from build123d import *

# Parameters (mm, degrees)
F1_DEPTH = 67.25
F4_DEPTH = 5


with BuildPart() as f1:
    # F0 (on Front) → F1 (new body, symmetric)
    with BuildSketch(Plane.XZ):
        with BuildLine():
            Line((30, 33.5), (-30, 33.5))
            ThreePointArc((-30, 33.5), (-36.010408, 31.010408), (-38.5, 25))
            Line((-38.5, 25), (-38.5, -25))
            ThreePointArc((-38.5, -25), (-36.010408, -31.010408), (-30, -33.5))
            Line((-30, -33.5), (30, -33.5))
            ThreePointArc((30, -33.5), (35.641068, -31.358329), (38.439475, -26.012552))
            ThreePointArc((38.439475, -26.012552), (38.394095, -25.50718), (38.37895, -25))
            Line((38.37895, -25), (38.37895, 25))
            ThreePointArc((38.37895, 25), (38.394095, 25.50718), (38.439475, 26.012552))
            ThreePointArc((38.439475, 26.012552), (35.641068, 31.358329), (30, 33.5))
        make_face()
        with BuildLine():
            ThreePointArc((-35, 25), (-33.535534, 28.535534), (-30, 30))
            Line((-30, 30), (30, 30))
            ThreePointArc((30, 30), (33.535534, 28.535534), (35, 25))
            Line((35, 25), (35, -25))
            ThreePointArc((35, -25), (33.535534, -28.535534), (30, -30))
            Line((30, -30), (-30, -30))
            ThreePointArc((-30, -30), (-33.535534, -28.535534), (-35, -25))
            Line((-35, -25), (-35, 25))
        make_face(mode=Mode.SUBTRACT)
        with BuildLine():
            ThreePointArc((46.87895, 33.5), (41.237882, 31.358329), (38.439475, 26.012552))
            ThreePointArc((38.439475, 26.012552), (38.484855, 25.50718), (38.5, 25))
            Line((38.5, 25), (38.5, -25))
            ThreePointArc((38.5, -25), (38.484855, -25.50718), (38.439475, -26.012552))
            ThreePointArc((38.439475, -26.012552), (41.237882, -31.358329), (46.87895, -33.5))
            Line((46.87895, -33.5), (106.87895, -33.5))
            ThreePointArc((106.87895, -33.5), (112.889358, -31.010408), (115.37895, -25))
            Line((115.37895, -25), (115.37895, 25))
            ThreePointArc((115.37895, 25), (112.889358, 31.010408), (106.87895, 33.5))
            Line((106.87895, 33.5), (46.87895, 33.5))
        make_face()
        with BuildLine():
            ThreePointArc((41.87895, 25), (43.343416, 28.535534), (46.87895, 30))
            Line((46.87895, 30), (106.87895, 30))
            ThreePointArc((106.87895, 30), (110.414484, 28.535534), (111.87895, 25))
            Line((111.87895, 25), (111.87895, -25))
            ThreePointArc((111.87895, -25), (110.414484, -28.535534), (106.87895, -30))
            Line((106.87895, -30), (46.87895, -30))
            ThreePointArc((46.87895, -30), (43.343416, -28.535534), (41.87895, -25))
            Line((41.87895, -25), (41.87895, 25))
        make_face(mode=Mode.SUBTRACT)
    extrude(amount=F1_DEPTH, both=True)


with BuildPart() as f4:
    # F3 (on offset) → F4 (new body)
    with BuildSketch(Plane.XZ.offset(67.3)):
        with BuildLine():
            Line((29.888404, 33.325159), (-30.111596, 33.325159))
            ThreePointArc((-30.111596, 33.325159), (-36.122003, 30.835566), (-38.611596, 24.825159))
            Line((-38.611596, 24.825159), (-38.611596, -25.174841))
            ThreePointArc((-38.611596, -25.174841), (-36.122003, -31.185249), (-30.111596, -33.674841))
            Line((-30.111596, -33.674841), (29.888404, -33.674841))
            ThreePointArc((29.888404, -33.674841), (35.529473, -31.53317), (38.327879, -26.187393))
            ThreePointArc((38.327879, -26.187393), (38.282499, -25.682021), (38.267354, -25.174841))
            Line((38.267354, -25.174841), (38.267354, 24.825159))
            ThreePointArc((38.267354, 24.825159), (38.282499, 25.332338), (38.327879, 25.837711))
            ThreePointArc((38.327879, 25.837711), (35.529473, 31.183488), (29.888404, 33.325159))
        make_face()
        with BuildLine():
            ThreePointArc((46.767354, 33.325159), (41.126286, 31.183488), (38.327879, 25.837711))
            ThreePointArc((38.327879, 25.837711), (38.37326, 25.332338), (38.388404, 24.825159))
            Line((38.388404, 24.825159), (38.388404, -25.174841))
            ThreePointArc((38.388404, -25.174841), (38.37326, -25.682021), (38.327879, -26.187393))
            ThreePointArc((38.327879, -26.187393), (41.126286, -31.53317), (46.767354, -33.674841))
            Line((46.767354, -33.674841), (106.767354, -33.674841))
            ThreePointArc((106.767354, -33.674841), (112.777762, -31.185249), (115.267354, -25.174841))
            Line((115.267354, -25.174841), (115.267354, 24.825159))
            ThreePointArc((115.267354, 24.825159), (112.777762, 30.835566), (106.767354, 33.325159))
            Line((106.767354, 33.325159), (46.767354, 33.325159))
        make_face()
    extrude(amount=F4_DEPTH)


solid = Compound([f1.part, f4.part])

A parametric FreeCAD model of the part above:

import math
import FreeCAD as App
import Part
import Sketcher

doc = App.newDocument("Part")
body = doc.addObject("PartDesign::Body", "Body")
body.AllowCompound = True

sketch1 = body.newObject("Sketcher::SketchObject", "Sketch")
sketch1.AttachmentSupport = (doc.getObject("XZ_Plane"), [""])
sketch1.MapMode = "FlatFace"
sketch1.addGeometry(Part.LineSegment(App.Vector(30, 33.5, 0), App.Vector(-30, 33.5, 0)), False)
sketch1.addGeometry(Part.ArcOfCircle(Part.Circle(App.Vector(-30.000001, 25.000001, 0), App.Vector(0, 0, 1), 8.499999), math.radians(89.999992), math.radians(180.000008)), False)
sketch1.addGeometry(Part.LineSegment(App.Vector(-38.5, 25, 0), App.Vector(-38.5, -25, 0)), False)
sketch1.addGeometry(Part.ArcOfCircle(Part.Circle(App.Vector(-30.000001, -25.000001, 0), App.Vector(0, 0, 1), 8.499999), math.radians(179.999992), math.radians(270.000008)), False)
sketch1.addGeometry(Part.LineSegment(App.Vector(-30, -33.5, 0), App.Vector(30, -33.5, 0)), False)
sketch1.addGeometry(Part.ArcOfCircle(Part.Circle(App.Vector(29.999999, -24.999999, 0), App.Vector(0, 0, 1), 8.500001), math.radians(-89.999996), math.radians(-6.841539)), False)
sketch1.addGeometry(Part.ArcOfCircle(Part.Circle(App.Vector(46.879082, -24.999992, 0), App.Vector(0, 0, 1), 8.500132), math.radians(-179.999946), math.radians(-173.158517)), False)
sketch1.addGeometry(Part.LineSegment(App.Vector(38.37895, -25, 0), App.Vector(38.37895, 25, 0)), False)
sketch1.addGeometry(Part.ArcOfCircle(Part.Circle(App.Vector(46.879082, 24.999992, 0), App.Vector(0, 0, 1), 8.500132), math.radians(173.158517), math.radians(179.999946)), False)
sketch1.addGeometry(Part.ArcOfCircle(Part.Circle(App.Vector(29.999999, 24.999999, 0), App.Vector(0, 0, 1), 8.500001), math.radians(6.841539), math.radians(89.999996)), False)
sketch1.addGeometry(Part.LineSegment(App.Vector(-35, -25, 0), App.Vector(-35, 25, 0)), False)
sketch1.addGeometry(Part.ArcOfCircle(Part.Circle(App.Vector(-30, 25, 0), App.Vector(0, 0, 1), 5), math.radians(89.999996), math.radians(180.000004)), False)
sketch1.addGeometry(Part.LineSegment(App.Vector(-30, 30, 0), App.Vector(30, 30, 0)), False)
sketch1.addGeometry(Part.ArcOfCircle(Part.Circle(App.Vector(30, 25, 0), App.Vector(0, 0, 1), 5), math.radians(-0.000004), math.radians(90.000004)), False)
sketch1.addGeometry(Part.LineSegment(App.Vector(35, 25, 0), App.Vector(35, -25, 0)), False)
sketch1.addGeometry(Part.ArcOfCircle(Part.Circle(App.Vector(30, -25, 0), App.Vector(0, 0, 1), 5), math.radians(-90.000004), math.radians(0.000004)), False)
sketch1.addGeometry(Part.LineSegment(App.Vector(30, -30, 0), App.Vector(-30, -30, 0)), False)
sketch1.addGeometry(Part.ArcOfCircle(Part.Circle(App.Vector(-30, -25, 0), App.Vector(0, 0, 1), 5), math.radians(179.999996), math.radians(270.000004)), False)
sketch1.addGeometry(Part.ArcOfCircle(Part.Circle(App.Vector(46.878951, 24.999999, 0), App.Vector(0, 0, 1), 8.500001), math.radians(90.000004), math.radians(173.158461)), False)
sketch1.addGeometry(Part.ArcOfCircle(Part.Circle(App.Vector(29.999868, 24.999992, 0), App.Vector(0, 0, 1), 8.500132), math.radians(0.000054), math.radians(6.841483)), False)
sketch1.addGeometry(Part.LineSegment(App.Vector(38.5, 25, 0), App.Vector(38.5, -25, 0)), False)
sketch1.addGeometry(Part.ArcOfCircle(Part.Circle(App.Vector(29.999868, -24.999992, 0), App.Vector(0, 0, 1), 8.500132), math.radians(-6.841483), math.radians(-0.000054)), False)
sketch1.addGeometry(Part.ArcOfCircle(Part.Circle(App.Vector(46.878951, -24.999999, 0), App.Vector(0, 0, 1), 8.500001), math.radians(-173.158461), math.radians(-90.000004)), False)
sketch1.addGeometry(Part.LineSegment(App.Vector(46.87895, -33.5, 0), App.Vector(106.87895, -33.5, 0)), False)
sketch1.addGeometry(Part.ArcOfCircle(Part.Circle(App.Vector(106.878951, -25.000001, 0), App.Vector(0, 0, 1), 8.499999), math.radians(-90.000008), math.radians(0.000008)), False)
sketch1.addGeometry(Part.LineSegment(App.Vector(115.37895, -25, 0), App.Vector(115.37895, 25, 0)), False)
sketch1.addGeometry(Part.ArcOfCircle(Part.Circle(App.Vector(106.878951, 25.000001, 0), App.Vector(0, 0, 1), 8.499999), math.radians(-0.000008), math.radians(90.000008)), False)
sketch1.addGeometry(Part.LineSegment(App.Vector(106.87895, 33.5, 0), App.Vector(46.87895, 33.5, 0)), False)
sketch1.addGeometry(Part.LineSegment(App.Vector(41.87895, -25, 0), App.Vector(41.87895, 25, 0)), False)
sketch1.addGeometry(Part.ArcOfCircle(Part.Circle(App.Vector(46.87895, 25, 0), App.Vector(0, 0, 1), 5), math.radians(89.999996), math.radians(180.000004)), False)
sketch1.addGeometry(Part.LineSegment(App.Vector(46.87895, 30, 0), App.Vector(106.87895, 30, 0)), False)
sketch1.addGeometry(Part.ArcOfCircle(Part.Circle(App.Vector(106.87895, 25, 0), App.Vector(0, 0, 1), 5), math.radians(-0.000004), math.radians(90.000004)), False)
sketch1.addGeometry(Part.LineSegment(App.Vector(111.87895, 25, 0), App.Vector(111.87895, -25, 0)), False)
sketch1.addGeometry(Part.ArcOfCircle(Part.Circle(App.Vector(106.87895, -25, 0), App.Vector(0, 0, 1), 5), math.radians(-90.000004), math.radians(0.000004)), False)
sketch1.addGeometry(Part.LineSegment(App.Vector(106.87895, -30, 0), App.Vector(46.87895, -30, 0)), False)
sketch1.addGeometry(Part.ArcOfCircle(Part.Circle(App.Vector(46.87895, -25, 0), App.Vector(0, 0, 1), 5), math.radians(179.999996), math.radians(270.000004)), False)
sketch1.addConstraint(Sketcher.Constraint("Coincident", 0, 2, 1, 1))
sketch1.addConstraint(Sketcher.Constraint("Coincident", 1, 2, 2, 1))
sketch1.addConstraint(Sketcher.Constraint("Coincident", 2, 2, 3, 1))
sketch1.addConstraint(Sketcher.Constraint("Coincident", 3, 2, 4, 1))
sketch1.addConstraint(Sketcher.Constraint("Coincident", 4, 2, 5, 1))
sketch1.addConstraint(Sketcher.Constraint("Coincident", 5, 2, 6, 2))
sketch1.addConstraint(Sketcher.Constraint("Coincident", 6, 1, 7, 1))
sketch1.addConstraint(Sketcher.Constraint("Coincident", 7, 2, 8, 2))
sketch1.addConstraint(Sketcher.Constraint("Coincident", 8, 1, 9, 1))
sketch1.addConstraint(Sketcher.Constraint("Coincident", 9, 2, 0, 1))
sketch1.addConstraint(Sketcher.Constraint("Coincident", 10, 2, 11, 2))
sketch1.addConstraint(Sketcher.Constraint("Coincident", 11, 1, 12, 1))
sketch1.addConstraint(Sketcher.Constraint("Coincident", 12, 2, 13, 2))
sketch1.addConstraint(Sketcher.Constraint("Coincident", 13, 1, 14, 1))
sketch1.addConstraint(Sketcher.Constraint("Coincident", 14, 2, 15, 2))
sketch1.addConstraint(Sketcher.Constraint("Coincident", 15, 1, 16, 1))
sketch1.addConstraint(Sketcher.Constraint("Coincident", 16, 2, 17, 2))
sketch1.addConstraint(Sketcher.Constraint("Coincident", 17, 1, 10, 1))
sketch1.addConstraint(Sketcher.Constraint("Coincident", 18, 2, 19, 2))
sketch1.addConstraint(Sketcher.Constraint("Coincident", 19, 1, 20, 1))
sketch1.addConstraint(Sketcher.Constraint("Coincident", 20, 2, 21, 2))
sketch1.addConstraint(Sketcher.Constraint("Coincident", 21, 1, 22, 1))
sketch1.addConstraint(Sketcher.Constraint("Coincident", 22, 2, 23, 1))
sketch1.addConstraint(Sketcher.Constraint("Coincident", 23, 2, 24, 1))
sketch1.addConstraint(Sketcher.Constraint("Coincident", 24, 2, 25, 1))
sketch1.addConstraint(Sketcher.Constraint("Coincident", 25, 2, 26, 1))
sketch1.addConstraint(Sketcher.Constraint("Coincident", 26, 2, 27, 1))
sketch1.addConstraint(Sketcher.Constraint("Coincident", 27, 2, 18, 1))
sketch1.addConstraint(Sketcher.Constraint("Coincident", 28, 2, 29, 2))
sketch1.addConstraint(Sketcher.Constraint("Coincident", 29, 1, 30, 1))
sketch1.addConstraint(Sketcher.Constraint("Coincident", 30, 2, 31, 2))
sketch1.addConstraint(Sketcher.Constraint("Coincident", 31, 1, 32, 1))
sketch1.addConstraint(Sketcher.Constraint("Coincident", 32, 2, 33, 2))
sketch1.addConstraint(Sketcher.Constraint("Coincident", 33, 1, 34, 1))
sketch1.addConstraint(Sketcher.Constraint("Coincident", 34, 2, 35, 2))
sketch1.addConstraint(Sketcher.Constraint("Coincident", 35, 1, 28, 1))
sketch1.addConstraint(Sketcher.Constraint("Horizontal", 0))
sketch1.addConstraint(Sketcher.Constraint("Vertical", 2))
sketch1.addConstraint(Sketcher.Constraint("Horizontal", 4))
sketch1.addConstraint(Sketcher.Constraint("Vertical", 7))
sketch1.addConstraint(Sketcher.Constraint("Vertical", 10))
sketch1.addConstraint(Sketcher.Constraint("Horizontal", 12))
sketch1.addConstraint(Sketcher.Constraint("Vertical", 14))
sketch1.addConstraint(Sketcher.Constraint("Horizontal", 16))
sketch1.addConstraint(Sketcher.Constraint("Vertical", 20))
sketch1.addConstraint(Sketcher.Constraint("Horizontal", 23))
sketch1.addConstraint(Sketcher.Constraint("Vertical", 25))
sketch1.addConstraint(Sketcher.Constraint("Horizontal", 27))
sketch1.addConstraint(Sketcher.Constraint("Vertical", 28))
sketch1.addConstraint(Sketcher.Constraint("Horizontal", 30))
sketch1.addConstraint(Sketcher.Constraint("Vertical", 32))
sketch1.addConstraint(Sketcher.Constraint("Horizontal", 34))
sketch1.addConstraint(Sketcher.Constraint("Coincident", 11, 3, 1, 3))
sketch1.addConstraint(Sketcher.Constraint("Coincident", 13, 3, 9, 3))
sketch1.addConstraint(Sketcher.Constraint("Coincident", 15, 3, 5, 3))
sketch1.addConstraint(Sketcher.Constraint("Coincident", 17, 3, 3, 3))
sketch1.addConstraint(Sketcher.Constraint("Coincident", 29, 3, 18, 3))
sketch1.addConstraint(Sketcher.Constraint("Coincident", 31, 3, 26, 3))
sketch1.addConstraint(Sketcher.Constraint("Coincident", 33, 3, 24, 3))
sketch1.addConstraint(Sketcher.Constraint("Coincident", 35, 3, 22, 3))
sketch1.addConstraint(Sketcher.Constraint("Coincident", 18, 2, 8, 1))
sketch1.addConstraint(Sketcher.Constraint("Coincident", 21, 1, 5, 2))
sketch1.addConstraint(Sketcher.Constraint("Radius", 11, 5.0))
sketch1.addConstraint(Sketcher.Constraint("Radius", 13, 5.0))
sketch1.addConstraint(Sketcher.Constraint("Radius", 15, 5.0))
sketch1.addConstraint(Sketcher.Constraint("Radius", 17, 5.0))
sketch1.addConstraint(Sketcher.Constraint("Radius", 29, 5.0))
sketch1.addConstraint(Sketcher.Constraint("Radius", 31, 5.0))
sketch1.addConstraint(Sketcher.Constraint("Radius", 33, 5.0))
sketch1.addConstraint(Sketcher.Constraint("Radius", 35, 5.0))
sketch1.addConstraint(Sketcher.Constraint("Radius", 1, 8.499999))
sketch1.addConstraint(Sketcher.Constraint("Radius", 18, 8.500001))
sketch1.addConstraint(Sketcher.Constraint("DistanceX", 0, 2, 0, 1, 60.0))
sketch1.addConstraint(Sketcher.Constraint("DistanceX", 4, 1, 4, 2, 60.0))
sketch1.addConstraint(Sketcher.Constraint("DistanceX", 12, 1, 12, 2, 60.0))
sketch1.addConstraint(Sketcher.Constraint("DistanceX", 16, 2, 16, 1, 60.0))
sketch1.addConstraint(Sketcher.Constraint("DistanceX", 23, 1, 23, 2, 60.0))
sketch1.addConstraint(Sketcher.Constraint("DistanceX", 27, 2, 27, 1, 60.0))
sketch1.addConstraint(Sketcher.Constraint("DistanceX", 30, 1, 30, 2, 60.0))
sketch1.addConstraint(Sketcher.Constraint("DistanceX", 34, 2, 34, 1, 60.0))
sketch1.addConstraint(Sketcher.Constraint("DistanceY", 2, 2, 2, 1, 50.0))
sketch1.addConstraint(Sketcher.Constraint("DistanceY", 7, 1, 7, 2, 50.0))
sketch1.addConstraint(Sketcher.Constraint("DistanceY", 10, 1, 10, 2, 50.0))
sketch1.addConstraint(Sketcher.Constraint("DistanceY", 14, 2, 14, 1, 50.0))
sketch1.addConstraint(Sketcher.Constraint("DistanceY", 20, 2, 20, 1, 50.0))
sketch1.addConstraint(Sketcher.Constraint("DistanceY", 25, 1, 25, 2, 50.0))
sketch1.addConstraint(Sketcher.Constraint("DistanceY", 28, 1, 28, 2, 50.0))
sketch1.addConstraint(Sketcher.Constraint("DistanceY", 32, 2, 32, 1, 50.0))
sketch1.addConstraint(Sketcher.Constraint("DistanceX", 1, 3, -1, 1, 30.000001))
sketch1.addConstraint(Sketcher.Constraint("DistanceY", -1, 1, 1, 3, 25.000001))
sketch1.addConstraint(Sketcher.Constraint("DistanceY", 3, 3, -1, 1, 25.000001))
sketch1.addConstraint(Sketcher.Constraint("DistanceX", -1, 1, 5, 3, 29.999999))
sketch1.addConstraint(Sketcher.Constraint("DistanceY", -1, 1, 18, 3, 24.999999))
sketch1.addConstraint(Sketcher.Constraint("DistanceY", 22, 3, -1, 1, 24.999999))
sketch1.addConstraint(Sketcher.Constraint("DistanceX", 0, 2, -1, 1, 30.0))
sketch1.addConstraint(Sketcher.Constraint("DistanceY", -1, 1, 1, 2, 25.0))
sketch1.addConstraint(Sketcher.Constraint("DistanceX", 3, 2, -1, 1, 30.0))
sketch1.addConstraint(Sketcher.Constraint("DistanceY", 6, 1, -1, 1, 25.0))
sketch1.addConstraint(Sketcher.Constraint("DistanceY", -1, 1, 10, 2, 25.0))
sketch1.addConstraint(Sketcher.Constraint("DistanceX", 11, 1, -1, 1, 30.0))
sketch1.addConstraint(Sketcher.Constraint("DistanceY", -1, 1, 13, 1, 25.0))
sketch1.addConstraint(Sketcher.Constraint("DistanceX", -1, 1, 15, 1, 30.0))
sketch1.addConstraint(Sketcher.Constraint("DistanceY", -1, 1, 19, 1, 25.0))
sketch1.addConstraint(Sketcher.Constraint("DistanceY", 24, 2, -1, 1, 25.0))
sketch1.addConstraint(Sketcher.Constraint("DistanceY", -1, 1, 28, 2, 25.0))
sketch1.addConstraint(Sketcher.Constraint("DistanceY", -1, 1, 31, 1, 25.0))
sketch1.addConstraint(Sketcher.Constraint("DistanceX", 22, 3, 24, 3, 60.000001))
sketch1.addConstraint(Sketcher.Constraint("DistanceX", 28, 2, 29, 1, 5.0))
sketch1.addConstraint(Sketcher.Constraint("DistanceX", 26, 2, 31, 1, 5.0))
sketch1.addConstraint(Sketcher.Constraint("DistanceX", 23, 2, 32, 2, 5.0))
sketch1.addConstraint(Sketcher.Constraint("DistanceX", 33, 1, 32, 2, 5.0))
sketch1.addConstraint(Sketcher.Constraint("DistanceX", -1, 1, 19, 1, 38.5))
sketch1.addConstraint(Sketcher.Constraint("DistanceX", 6, 1, 35, 3, 8.5))
sketch1.addConstraint(Sketcher.Constraint("Radius", 6, 8.500132))
sketch1.addConstraint(Sketcher.Constraint("Radius", 8, 8.500132))
sketch1.addConstraint(Sketcher.Constraint("Radius", 19, 8.500132))
sketch1.addConstraint(Sketcher.Constraint("Radius", 21, 8.500132))
sketch1.addConstraint(Sketcher.Constraint("DistanceX", -1, 1, 6, 3, 46.879082))
pad1 = body.newObject("PartDesign::Pad", "Pad")
pad1.Profile = sketch1
pad1.Length = 134.5
pad1.Midplane = True
body2 = doc.addObject("PartDesign::Body", "Body001")
body2.AllowCompound = True

sketch2 = body2.newObject("Sketcher::SketchObject", "Sketch001")
sketch2.AttachmentSupport = (doc.getObject("XZ_Plane001"), [""])
sketch2.MapMode = "FlatFace"
sketch2.AttachmentOffset = App.Placement(App.Vector(0, 0, 67.3), App.Rotation())
sketch2.addGeometry(Part.LineSegment(App.Vector(29.888404, 33.325159, 0), App.Vector(-30.111596, 33.325159, 0)), False)
sketch2.addGeometry(Part.ArcOfCircle(Part.Circle(App.Vector(-30.111594, 24.825157, 0), App.Vector(0, 0, 1), 8.500002), math.radians(90.000015), math.radians(179.999985)), False)
sketch2.addGeometry(Part.LineSegment(App.Vector(-38.611596, 24.825159, 0), App.Vector(-38.611596, -25.174841, 0)), False)
sketch2.addGeometry(Part.ArcOfCircle(Part.Circle(App.Vector(-30.111596, -25.174841, 0), App.Vector(0, 0, 1), 8.5), math.radians(-179.999997), math.radians(-90.000003)), False)
sketch2.addGeometry(Part.LineSegment(App.Vector(-30.111596, -33.674841, 0), App.Vector(29.888404, -33.674841, 0)), False)
sketch2.addGeometry(Part.ArcOfCircle(Part.Circle(App.Vector(29.888405, -25.174842, 0), App.Vector(0, 0, 1), 8.499999), math.radians(-90.000008), math.radians(-6.841528)), False)
sketch2.addGeometry(Part.ArcOfCircle(Part.Circle(App.Vector(46.767486, -25.174833, 0), App.Vector(0, 0, 1), 8.500132), math.radians(-179.999946), math.radians(-173.158517)), False)
sketch2.addGeometry(Part.LineSegment(App.Vector(38.267354, -25.174841, 0), App.Vector(38.267354, 24.825159, 0)), False)
sketch2.addGeometry(Part.ArcOfCircle(Part.Circle(App.Vector(46.767519, 24.825149, 0), App.Vector(0, 0, 1), 8.500165), math.radians(173.158531), math.radians(179.999933)), False)
sketch2.addGeometry(Part.ArcOfCircle(Part.Circle(App.Vector(29.888405, 24.82516, 0), App.Vector(0, 0, 1), 8.499999), math.radians(6.841528), math.radians(90.000008)), False)
sketch2.addGeometry(Part.ArcOfCircle(Part.Circle(App.Vector(46.767355, 24.825158, 0), App.Vector(0, 0, 1), 8.500001), math.radians(90.000004), math.radians(173.158461)), False)
sketch2.addGeometry(Part.ArcOfCircle(Part.Circle(App.Vector(29.888798, 24.825182, 0), App.Vector(0, 0, 1), 8.499606), math.radians(-0.000158), math.radians(6.841695)), False)
sketch2.addGeometry(Part.LineSegment(App.Vector(38.388404, 24.825159, 0), App.Vector(38.388404, -25.174841, 0)), False)
sketch2.addGeometry(Part.ArcOfCircle(Part.Circle(App.Vector(29.888832, -25.174866, 0), App.Vector(0, 0, 1), 8.499572), math.radians(-6.841708), math.radians(0.000172)), False)
sketch2.addGeometry(Part.ArcOfCircle(Part.Circle(App.Vector(46.767355, -25.17484, 0), App.Vector(0, 0, 1), 8.500001), math.radians(-173.158461), math.radians(-90.000004)), False)
sketch2.addGeometry(Part.LineSegment(App.Vector(46.767354, -33.674841, 0), App.Vector(106.767354, -33.674841, 0)), False)
sketch2.addGeometry(Part.ArcOfCircle(Part.Circle(App.Vector(106.767355, -25.174842, 0), App.Vector(0, 0, 1), 8.499999), math.radians(-90.000008), math.radians(0.000008)), False)
sketch2.addGeometry(Part.LineSegment(App.Vector(115.267354, -25.174841, 0), App.Vector(115.267354, 24.825159, 0)), False)
sketch2.addGeometry(Part.ArcOfCircle(Part.Circle(App.Vector(106.767354, 24.825159, 0), App.Vector(0, 0, 1), 8.5), math.radians(0.000003), math.radians(89.999997)), False)
sketch2.addGeometry(Part.LineSegment(App.Vector(106.767354, 33.325159, 0), App.Vector(46.767354, 33.325159, 0)), False)
sketch2.addConstraint(Sketcher.Constraint("Coincident", 0, 2, 1, 1))
sketch2.addConstraint(Sketcher.Constraint("Coincident", 1, 2, 2, 1))
sketch2.addConstraint(Sketcher.Constraint("Coincident", 2, 2, 3, 1))
sketch2.addConstraint(Sketcher.Constraint("Coincident", 3, 2, 4, 1))
sketch2.addConstraint(Sketcher.Constraint("Coincident", 4, 2, 5, 1))
sketch2.addConstraint(Sketcher.Constraint("Coincident", 5, 2, 6, 2))
sketch2.addConstraint(Sketcher.Constraint("Coincident", 6, 1, 7, 1))
sketch2.addConstraint(Sketcher.Constraint("Coincident", 7, 2, 8, 2))
sketch2.addConstraint(Sketcher.Constraint("Coincident", 8, 1, 9, 1))
sketch2.addConstraint(Sketcher.Constraint("Coincident", 9, 2, 0, 1))
sketch2.addConstraint(Sketcher.Constraint("Coincident", 10, 2, 11, 2))
sketch2.addConstraint(Sketcher.Constraint("Coincident", 11, 1, 12, 1))
sketch2.addConstraint(Sketcher.Constraint("Coincident", 12, 2, 13, 2))
sketch2.addConstraint(Sketcher.Constraint("Coincident", 13, 1, 14, 1))
sketch2.addConstraint(Sketcher.Constraint("Coincident", 14, 2, 15, 1))
sketch2.addConstraint(Sketcher.Constraint("Coincident", 15, 2, 16, 1))
sketch2.addConstraint(Sketcher.Constraint("Coincident", 16, 2, 17, 1))
sketch2.addConstraint(Sketcher.Constraint("Coincident", 17, 2, 18, 1))
sketch2.addConstraint(Sketcher.Constraint("Coincident", 18, 2, 19, 1))
sketch2.addConstraint(Sketcher.Constraint("Coincident", 19, 2, 10, 1))
sketch2.addConstraint(Sketcher.Constraint("Horizontal", 0))
sketch2.addConstraint(Sketcher.Constraint("Vertical", 2))
sketch2.addConstraint(Sketcher.Constraint("Horizontal", 4))
sketch2.addConstraint(Sketcher.Constraint("Vertical", 7))
sketch2.addConstraint(Sketcher.Constraint("Vertical", 12))
sketch2.addConstraint(Sketcher.Constraint("Horizontal", 15))
sketch2.addConstraint(Sketcher.Constraint("Vertical", 17))
sketch2.addConstraint(Sketcher.Constraint("Horizontal", 19))
sketch2.addConstraint(Sketcher.Constraint("Coincident", 10, 2, 8, 1))
sketch2.addConstraint(Sketcher.Constraint("Coincident", 13, 1, 5, 2))
sketch2.addConstraint(Sketcher.Constraint("Radius", 3, 8.5))
sketch2.addConstraint(Sketcher.Constraint("Radius", 5, 8.499999))
sketch2.addConstraint(Sketcher.Constraint("Radius", 9, 8.499999))
sketch2.addConstraint(Sketcher.Constraint("Radius", 10, 8.500001))
sketch2.addConstraint(Sketcher.Constraint("Radius", 14, 8.500001))
sketch2.addConstraint(Sketcher.Constraint("Radius", 16, 8.499999))
sketch2.addConstraint(Sketcher.Constraint("Radius", 18, 8.5))
sketch2.addConstraint(Sketcher.Constraint("DistanceX", 0, 2, 0, 1, 60.0))
sketch2.addConstraint(Sketcher.Constraint("DistanceX", 4, 1, 4, 2, 60.0))
sketch2.addConstraint(Sketcher.Constraint("DistanceX", 15, 1, 15, 2, 60.0))
sketch2.addConstraint(Sketcher.Constraint("DistanceX", 19, 2, 19, 1, 60.0))
sketch2.addConstraint(Sketcher.Constraint("DistanceY", 2, 2, 2, 1, 50.0))
sketch2.addConstraint(Sketcher.Constraint("DistanceY", 7, 1, 7, 2, 50.0))
sketch2.addConstraint(Sketcher.Constraint("DistanceY", 12, 2, 12, 1, 50.0))
sketch2.addConstraint(Sketcher.Constraint("DistanceY", 17, 1, 17, 2, 50.0))
sketch2.addConstraint(Sketcher.Constraint("DistanceX", 3, 3, 5, 3, 60.000001))
sketch2.addConstraint(Sketcher.Constraint("DistanceX", 1, 3, 5, 3, 59.999999))
sketch2.addConstraint(Sketcher.Constraint("DistanceY", 5, 3, 1, 3, 49.999999))
sketch2.addConstraint(Sketcher.Constraint("DistanceX", 1, 3, 9, 3, 59.999999))
sketch2.addConstraint(Sketcher.Constraint("DistanceY", 5, 3, 10, 3, 50.000001))
sketch2.addConstraint(Sketcher.Constraint("DistanceY", 14, 3, 10, 3, 49.999999))
sketch2.addConstraint(Sketcher.Constraint("DistanceX", 14, 3, 16, 3, 60.000001))
sketch2.addConstraint(Sketcher.Constraint("DistanceX", 10, 3, 18, 3, 59.999999))
sketch2.addConstraint(Sketcher.Constraint("DistanceX", 0, 2, 9, 3, 60.000001))
sketch2.addConstraint(Sketcher.Constraint("DistanceY", 3, 3, 1, 2, 50.0))
sketch2.addConstraint(Sketcher.Constraint("DistanceX", 3, 2, 5, 3, 60.000001))
sketch2.addConstraint(Sketcher.Constraint("DistanceX", 14, 3, 15, 2, 59.999999))
sketch2.addConstraint(Sketcher.Constraint("DistanceY", 16, 2, 18, 3, 50.0))
sketch2.addConstraint(Sketcher.Constraint("DistanceX", 6, 1, 14, 3, 8.500001))
sketch2.addConstraint(Sketcher.Constraint("DistanceY", 7, 2, 9, 2, 8.5))
sketch2.addConstraint(Sketcher.Constraint("DistanceY", 14, 2, 12, 2, 8.5))
sketch2.addConstraint(Sketcher.Constraint("DistanceX", 18, 2, 17, 2, 8.5))
sketch2.addConstraint(Sketcher.Constraint("Radius", 6, 8.500132))
sketch2.addConstraint(Sketcher.Constraint("Radius", 8, 8.500165))
sketch2.addConstraint(Sketcher.Constraint("Radius", 11, 8.499606))
sketch2.addConstraint(Sketcher.Constraint("Radius", 13, 8.499572))
sketch2.addConstraint(Sketcher.Constraint("DistanceX", -1, 1, 11, 3, 29.888798))
sketch2.addConstraint(Sketcher.Constraint("DistanceY", 3, 3, -1, 1, 25.174841))
sketch2.addConstraint(Sketcher.Constraint("DistanceX", -1, 1, 8, 3, 46.767519))
sketch2.addConstraint(Sketcher.Constraint("DistanceX", -1, 1, 5, 2, 38.327879))
pad2 = body2.newObject("PartDesign::Pad", "Pad001")
pad2.Profile = sketch2
pad2.Length = 5

doc.recompute()
